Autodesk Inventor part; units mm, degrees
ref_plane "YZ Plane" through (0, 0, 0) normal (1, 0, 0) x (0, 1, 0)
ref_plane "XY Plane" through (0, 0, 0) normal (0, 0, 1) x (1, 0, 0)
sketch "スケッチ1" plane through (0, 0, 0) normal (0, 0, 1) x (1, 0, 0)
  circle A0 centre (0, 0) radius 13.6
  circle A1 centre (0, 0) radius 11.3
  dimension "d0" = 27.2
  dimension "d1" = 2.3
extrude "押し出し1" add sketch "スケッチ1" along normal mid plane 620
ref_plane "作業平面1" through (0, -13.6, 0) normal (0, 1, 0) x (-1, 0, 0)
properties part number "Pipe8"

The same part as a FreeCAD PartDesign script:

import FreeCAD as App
import Part
import Sketcher
from FreeCAD import Vector

doc = App.newDocument("Part")
params = doc.addObject("Spreadsheet::Sheet", "Params")
for row, (alias, value) in enumerate([
    ("sketch1_diameter", "27.2 mm"),
    ("sketch1_diameter2", "22.6 mm"),
    ("pad1_length", "620 mm"),
], start=1):
    params.set(f"A{row}", alias)
    params.set(f"B{row}", "=" + value)
    params.setAlias(f"B{row}", alias)

body = doc.addObject("PartDesign::Body", "Body")

sketch1 = body.newObject("Sketcher::SketchObject", "Sketch")
sketch1.AttachmentSupport = (doc.getObject("XY_Plane"), [""])
sketch1.MapMode = "FlatFace"
sketch1.addGeometry(Part.Circle(Vector(0, 0, 0), Vector(0, 0, 1), 14), False)
sketch1.addGeometry(Part.Circle(Vector(0, 0, 0), Vector(0, 0, 1), 11), False)
sketch1.addConstraint(Sketcher.Constraint("Coincident", 0, 3, -1, 1))
sketch1.addConstraint(Sketcher.Constraint("Coincident", 1, 3, -1, 1))
sketch1.addConstraint(Sketcher.Constraint("Diameter", 0, 27.2))
sketch1.addConstraint(Sketcher.Constraint("Diameter", 1, 22.6))
sketch1.setExpression("Constraints[2]", "Params.sketch1_diameter")
sketch1.setExpression("Constraints[3]", "Params.sketch1_diameter2")
pad1 = body.newObject("PartDesign::Pad", "Pad")
pad1.Profile = sketch1
pad1.setExpression("Length", "Params.pad1_length")
pad1.Midplane = True

doc.recompute()
